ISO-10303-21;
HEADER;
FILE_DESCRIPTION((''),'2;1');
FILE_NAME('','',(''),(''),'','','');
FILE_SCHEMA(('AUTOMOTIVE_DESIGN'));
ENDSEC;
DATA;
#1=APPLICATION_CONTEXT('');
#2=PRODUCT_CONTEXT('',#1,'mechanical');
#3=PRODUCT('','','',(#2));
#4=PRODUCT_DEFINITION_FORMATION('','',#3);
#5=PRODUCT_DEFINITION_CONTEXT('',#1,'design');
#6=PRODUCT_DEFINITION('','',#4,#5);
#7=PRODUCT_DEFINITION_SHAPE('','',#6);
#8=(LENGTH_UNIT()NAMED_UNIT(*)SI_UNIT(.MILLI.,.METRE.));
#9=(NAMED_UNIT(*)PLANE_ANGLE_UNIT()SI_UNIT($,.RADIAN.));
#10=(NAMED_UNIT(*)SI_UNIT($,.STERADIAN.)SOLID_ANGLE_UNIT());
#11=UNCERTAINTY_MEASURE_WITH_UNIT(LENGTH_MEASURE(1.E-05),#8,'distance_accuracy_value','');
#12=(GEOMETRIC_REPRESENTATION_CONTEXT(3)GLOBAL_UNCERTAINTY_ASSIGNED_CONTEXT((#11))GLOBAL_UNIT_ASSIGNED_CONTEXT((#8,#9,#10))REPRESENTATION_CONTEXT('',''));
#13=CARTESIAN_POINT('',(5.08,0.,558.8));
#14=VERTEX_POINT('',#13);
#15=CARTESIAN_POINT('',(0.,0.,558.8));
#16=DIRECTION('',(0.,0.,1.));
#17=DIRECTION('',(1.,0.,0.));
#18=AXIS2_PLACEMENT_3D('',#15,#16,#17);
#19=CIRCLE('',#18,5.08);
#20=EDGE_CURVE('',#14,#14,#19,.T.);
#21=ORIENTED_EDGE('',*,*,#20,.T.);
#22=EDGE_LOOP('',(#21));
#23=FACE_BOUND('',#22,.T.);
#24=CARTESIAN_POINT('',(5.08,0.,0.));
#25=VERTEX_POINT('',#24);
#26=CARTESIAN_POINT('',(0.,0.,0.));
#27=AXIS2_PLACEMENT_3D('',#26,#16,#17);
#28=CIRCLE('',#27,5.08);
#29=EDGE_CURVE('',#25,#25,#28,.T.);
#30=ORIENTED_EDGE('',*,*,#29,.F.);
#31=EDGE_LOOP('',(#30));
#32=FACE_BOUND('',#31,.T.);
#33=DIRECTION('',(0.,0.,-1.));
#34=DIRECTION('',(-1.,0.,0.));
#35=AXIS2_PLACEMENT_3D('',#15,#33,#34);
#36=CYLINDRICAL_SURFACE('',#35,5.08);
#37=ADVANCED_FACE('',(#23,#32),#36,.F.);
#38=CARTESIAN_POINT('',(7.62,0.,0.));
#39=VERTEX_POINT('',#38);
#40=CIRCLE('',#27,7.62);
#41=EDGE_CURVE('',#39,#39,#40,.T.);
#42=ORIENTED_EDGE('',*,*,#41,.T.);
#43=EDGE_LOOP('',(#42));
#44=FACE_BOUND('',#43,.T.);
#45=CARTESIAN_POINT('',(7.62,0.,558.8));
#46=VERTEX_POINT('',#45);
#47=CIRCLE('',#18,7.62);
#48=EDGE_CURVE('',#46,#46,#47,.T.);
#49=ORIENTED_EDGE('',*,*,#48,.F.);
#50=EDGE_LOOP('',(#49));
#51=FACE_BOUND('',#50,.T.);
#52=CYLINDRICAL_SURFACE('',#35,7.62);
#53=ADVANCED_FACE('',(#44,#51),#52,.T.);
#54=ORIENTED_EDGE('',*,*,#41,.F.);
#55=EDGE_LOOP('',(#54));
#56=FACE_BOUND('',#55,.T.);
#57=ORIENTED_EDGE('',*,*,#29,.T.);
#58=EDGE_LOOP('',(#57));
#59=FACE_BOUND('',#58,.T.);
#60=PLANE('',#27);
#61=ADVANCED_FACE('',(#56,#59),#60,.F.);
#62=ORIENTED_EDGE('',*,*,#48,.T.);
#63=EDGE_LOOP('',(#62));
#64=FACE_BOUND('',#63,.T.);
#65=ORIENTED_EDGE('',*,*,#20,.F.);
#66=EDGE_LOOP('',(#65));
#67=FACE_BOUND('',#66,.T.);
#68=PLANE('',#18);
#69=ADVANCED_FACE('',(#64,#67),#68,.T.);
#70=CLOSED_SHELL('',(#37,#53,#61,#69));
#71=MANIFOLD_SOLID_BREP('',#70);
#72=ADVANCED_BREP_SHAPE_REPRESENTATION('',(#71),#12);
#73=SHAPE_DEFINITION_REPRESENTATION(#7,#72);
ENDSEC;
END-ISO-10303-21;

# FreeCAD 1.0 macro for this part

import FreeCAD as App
import Part
import Sketcher
Q = App.Units.Quantity

doc = App.newDocument("Part")
body = doc.addObject("PartDesign::Body", "Body")

sketch1 = body.newObject("Sketcher::SketchObject", "Sketch")
sketch1.AttachmentSupport = (doc.getObject("XY_Plane"), [""])
sketch1.MapMode = "FlatFace"
sketch1.addGeometry([
    Part.Circle(App.Vector(0, 0, 0), App.Vector(0, 0, 1), 8),
    Part.Circle(App.Vector(0, 0, 0), App.Vector(0, 0, 1), 5),
], False)
sketch1.addConstraint([
    Sketcher.Constraint("Coincident", 0, 3, -1, 1),
    Sketcher.Constraint("Coincident", 1, 3, -1, 1),
    Sketcher.Constraint("Diameter", 0, Q("0.6 in")),
    Sketcher.Constraint("Diameter", 1, Q("0.4 in")),
])
pad1 = body.newObject("PartDesign::Pad", "Pad")
pad1.Profile = sketch1
pad1.Length = Q("22 in")

doc.recompute()
